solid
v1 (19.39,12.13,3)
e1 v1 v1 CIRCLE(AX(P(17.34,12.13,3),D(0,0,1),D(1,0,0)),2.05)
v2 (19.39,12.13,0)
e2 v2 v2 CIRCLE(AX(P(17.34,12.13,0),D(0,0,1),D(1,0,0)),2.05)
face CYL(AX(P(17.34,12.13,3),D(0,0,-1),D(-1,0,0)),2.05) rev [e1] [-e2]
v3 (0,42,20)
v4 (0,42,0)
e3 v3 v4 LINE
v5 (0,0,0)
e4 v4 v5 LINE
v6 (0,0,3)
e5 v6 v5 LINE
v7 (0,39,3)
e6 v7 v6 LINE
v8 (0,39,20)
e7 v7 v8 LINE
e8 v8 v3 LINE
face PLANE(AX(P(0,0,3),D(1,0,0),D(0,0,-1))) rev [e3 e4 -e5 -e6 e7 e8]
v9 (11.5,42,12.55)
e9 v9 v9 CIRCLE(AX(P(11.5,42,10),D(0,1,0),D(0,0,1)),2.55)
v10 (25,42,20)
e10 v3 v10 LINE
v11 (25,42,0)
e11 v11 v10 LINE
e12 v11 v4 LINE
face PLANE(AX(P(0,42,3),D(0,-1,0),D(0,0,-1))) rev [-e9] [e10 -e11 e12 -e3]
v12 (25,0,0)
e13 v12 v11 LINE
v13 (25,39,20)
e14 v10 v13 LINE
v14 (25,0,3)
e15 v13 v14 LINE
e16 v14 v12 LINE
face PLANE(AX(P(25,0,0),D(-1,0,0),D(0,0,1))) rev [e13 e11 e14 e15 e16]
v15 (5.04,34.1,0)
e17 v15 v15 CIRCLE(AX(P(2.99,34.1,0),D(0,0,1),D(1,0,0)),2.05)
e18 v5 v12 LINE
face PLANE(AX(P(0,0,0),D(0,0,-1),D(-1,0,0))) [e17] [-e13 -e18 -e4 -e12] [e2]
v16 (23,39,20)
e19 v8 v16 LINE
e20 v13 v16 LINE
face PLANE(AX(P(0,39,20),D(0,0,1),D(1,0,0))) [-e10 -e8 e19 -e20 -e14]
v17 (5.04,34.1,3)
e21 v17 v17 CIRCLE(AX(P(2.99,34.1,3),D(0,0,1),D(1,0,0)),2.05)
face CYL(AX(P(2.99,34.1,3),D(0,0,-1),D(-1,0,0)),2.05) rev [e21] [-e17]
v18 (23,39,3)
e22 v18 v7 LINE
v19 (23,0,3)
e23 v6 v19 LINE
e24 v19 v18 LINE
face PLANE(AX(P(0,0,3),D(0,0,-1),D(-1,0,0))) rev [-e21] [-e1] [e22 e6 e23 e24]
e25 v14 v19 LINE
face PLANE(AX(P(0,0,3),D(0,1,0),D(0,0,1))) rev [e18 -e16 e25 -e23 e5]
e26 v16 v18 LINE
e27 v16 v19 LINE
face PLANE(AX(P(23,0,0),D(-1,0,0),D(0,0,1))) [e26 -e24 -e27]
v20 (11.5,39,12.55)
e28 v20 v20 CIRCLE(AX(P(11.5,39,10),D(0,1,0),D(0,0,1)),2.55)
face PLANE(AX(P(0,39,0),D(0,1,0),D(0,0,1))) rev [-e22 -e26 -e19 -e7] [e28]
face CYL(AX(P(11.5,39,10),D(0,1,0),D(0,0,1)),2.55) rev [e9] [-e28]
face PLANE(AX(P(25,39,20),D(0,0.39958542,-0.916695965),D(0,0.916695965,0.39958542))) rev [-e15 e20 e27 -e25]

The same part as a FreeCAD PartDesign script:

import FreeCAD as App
import Part
import Sketcher
Q = App.Units.Quantity

doc = App.newDocument("Part")
body = doc.addObject("PartDesign::Body", "Body")

# Sketch on XY plane
sketch1 = body.newObject("Sketcher::SketchObject", "Sketch")
sketch1.AttachmentSupport = (doc.getObject("XY_Plane"), [""])
sketch1.MapMode = "FlatFace"
sketch1.addGeometry(Part.LineSegment(App.Vector(0, 42, 0), App.Vector(0, 0, 0)), False)
sketch1.addGeometry(Part.LineSegment(App.Vector(0, 0, 0), App.Vector(23, 0, 0)), False)
sketch1.addGeometry(Part.LineSegment(App.Vector(23, 0, 0), App.Vector(23, 42, 0)), False)
sketch1.addGeometry(Part.LineSegment(App.Vector(23, 42, 0), App.Vector(0, 42, 0)), False)
sketch1.addGeometry(Part.Circle(App.Vector(17.34, 12.13, 0), App.Vector(0, 0, 1), 2.05), False)
sketch1.addGeometry(Part.Circle(App.Vector(2.99, 34.1, 0), App.Vector(0, 0, 1), 2.05), False)
sketch1.addConstraint(Sketcher.Constraint("Coincident", 0, 2, 1, 1))
sketch1.addConstraint(Sketcher.Constraint("Coincident", 1, 2, 2, 1))
sketch1.addConstraint(Sketcher.Constraint("Coincident", 2, 2, 3, 1))
sketch1.addConstraint(Sketcher.Constraint("Coincident", 3, 2, 0, 1))
sketch1.addConstraint(Sketcher.Constraint("Vertical", 0))
sketch1.addConstraint(Sketcher.Constraint("Horizontal", 1))
sketch1.addConstraint(Sketcher.Constraint("Vertical", 2))
sketch1.addConstraint(Sketcher.Constraint("Horizontal", 3))
sketch1.addConstraint(Sketcher.Constraint("Coincident", 0, 2, -1, 1))
sketch1.addConstraint(Sketcher.Constraint("Equal", 4, 5))
sketch1.addConstraint(Sketcher.Constraint("Diameter", 4, Q("4.1 mm")))
sketch1.addConstraint(Sketcher.Constraint("DistanceX", 1, 1, 1, 2, Q("23 mm")))
sketch1.addConstraint(Sketcher.Constraint("DistanceY", 0, 2, 0, 1, Q("42 mm")))
sketch1.addConstraint(Sketcher.Constraint("DistanceY", -1, 1, 5, 3, Q("34.1 mm")))
sketch1.addConstraint(Sketcher.Constraint("DistanceX", -1, 1, 4, 3, Q("17.34 mm")))
sketch1.addConstraint(Sketcher.Constraint("DistanceY", -1, 1, 4, 3, Q("12.13 mm")))
sketch1.addConstraint(Sketcher.Constraint("DistanceX", -1, 1, 5, 3, Q("2.99 mm")))
pad1 = body.newObject("PartDesign::Pad", "Pad")
pad1.Profile = sketch1
pad1.Length = 3

# Sketch on XZ plane
sketch2 = body.newObject("Sketcher::SketchObject", "Sketch001")
sketch2.AttachmentSupport = (doc.getObject("XZ_Plane"), [""])
sketch2.MapMode = "FlatFace"
sketch2.AttachmentOffset = App.Placement(App.Vector(0, 0, -42), App.Rotation())
sketch2.addGeometry(Part.LineSegment(App.Vector(0, 3, 0), App.Vector(0, 20, 0)), False)
sketch2.addGeometry(Part.LineSegment(App.Vector(0, 20, 0), App.Vector(23, 20, 0)), False)
sketch2.addGeometry(Part.LineSegment(App.Vector(23, 20, 0), App.Vector(23, 3, 0)), False)
sketch2.addGeometry(Part.LineSegment(App.Vector(23, 3, 0), App.Vector(0, 3, 0)), False)
sketch2.addGeometry(Part.Circle(App.Vector(11.5, 10, 0), App.Vector(0, 0, 1), 2.55), False)
sketch2.addConstraint(Sketcher.Constraint("Coincident", 0, 2, 1, 1))
sketch2.addConstraint(Sketcher.Constraint("Coincident", 1, 2, 2, 1))
sketch2.addConstraint(Sketcher.Constraint("Coincident", 2, 2, 3, 1))
sketch2.addConstraint(Sketcher.Constraint("Coincident", 3, 2, 0, 1))
sketch2.addConstraint(Sketcher.Constraint("Vertical", 0))
sketch2.addConstraint(Sketcher.Constraint("Horizontal", 1))
sketch2.addConstraint(Sketcher.Constraint("Vertical", 2))
sketch2.addConstraint(Sketcher.Constraint("Horizontal", 3))
sketch2.addConstraint(Sketcher.Constraint("PointOnObject", 0, 2, -2))
sketch2.addConstraint(Sketcher.Constraint("Diameter", 4, Q("5.1 mm")))
sketch2.addConstraint(Sketcher.Constraint("DistanceX", 1, 1, 1, 2, Q("23 mm")))
sketch2.addConstraint(Sketcher.Constraint("DistanceY", 0, 1, 0, 2, Q("17 mm")))
sketch2.addConstraint(Sketcher.Constraint("DistanceY", -1, 1, 4, 3, Q("10 mm")))
sketch2.addConstraint(Sketcher.Constraint("DistanceY", -1, 1, 0, 2, Q("20 mm")))
sketch2.addConstraint(Sketcher.Constraint("DistanceX", -1, 1, 4, 3, Q("11.5 mm")))
pad2 = body.newObject("PartDesign::Pad", "Pad001")
pad2.Profile = sketch2
pad2.Length = 3

# Sketch on YZ plane
sketch3 = body.newObject("Sketcher::SketchObject", "Sketch002")
sketch3.AttachmentSupport = (doc.getObject("YZ_Plane"), [""])
sketch3.MapMode = "FlatFace"
sketch3.AttachmentOffset = App.Placement(App.Vector(0, 0, 23), App.Rotation())
sketch3.addGeometry(Part.LineSegment(App.Vector(39, 20, 0), App.Vector(0, 3, 0)), False)
sketch3.addGeometry(Part.LineSegment(App.Vector(0, 3, 0), App.Vector(0, 0, 0)), False)
sketch3.addGeometry(Part.LineSegment(App.Vector(0, 0, 0), App.Vector(42, 0, 0)), False)
sketch3.addGeometry(Part.LineSegment(App.Vector(42, 0, 0), App.Vector(42, 20, 0)), False)
sketch3.addGeometry(Part.LineSegment(App.Vector(42, 20, 0), App.Vector(39, 20, 0)), False)
sketch3.addConstraint(Sketcher.Constraint("Coincident", 0, 2, 1, 1))
sketch3.addConstraint(Sketcher.Constraint("Coincident", 1, 2, 2, 1))
sketch3.addConstraint(Sketcher.Constraint("Coincident", 2, 2, 3, 1))
sketch3.addConstraint(Sketcher.Constraint("Coincident", 3, 2, 4, 1))
sketch3.addConstraint(Sketcher.Constraint("Coincident", 4, 2, 0, 1))
sketch3.addConstraint(Sketcher.Constraint("Vertical", 1))
sketch3.addConstraint(Sketcher.Constraint("Horizontal", 2))
sketch3.addConstraint(Sketcher.Constraint("Vertical", 3))
sketch3.addConstraint(Sketcher.Constraint("Horizontal", 4))
sketch3.addConstraint(Sketcher.Constraint("Coincident", 1, 2, -1, 1))
sketch3.addConstraint(Sketcher.Constraint("Equal", 4, 1))
sketch3.addConstraint(Sketcher.Constraint("DistanceX", 2, 1, 2, 2, Q("42 mm")))
sketch3.addConstraint(Sketcher.Constraint("DistanceX", 4, 2, 4, 1, Q("3 mm")))
sketch3.addConstraint(Sketcher.Constraint("DistanceY", 3, 1, 3, 2, Q("20 mm")))
pad3 = body.newObject("PartDesign::Pad", "Pad002")
pad3.Profile = sketch3
pad3.Length = 2

doc.recompute()
